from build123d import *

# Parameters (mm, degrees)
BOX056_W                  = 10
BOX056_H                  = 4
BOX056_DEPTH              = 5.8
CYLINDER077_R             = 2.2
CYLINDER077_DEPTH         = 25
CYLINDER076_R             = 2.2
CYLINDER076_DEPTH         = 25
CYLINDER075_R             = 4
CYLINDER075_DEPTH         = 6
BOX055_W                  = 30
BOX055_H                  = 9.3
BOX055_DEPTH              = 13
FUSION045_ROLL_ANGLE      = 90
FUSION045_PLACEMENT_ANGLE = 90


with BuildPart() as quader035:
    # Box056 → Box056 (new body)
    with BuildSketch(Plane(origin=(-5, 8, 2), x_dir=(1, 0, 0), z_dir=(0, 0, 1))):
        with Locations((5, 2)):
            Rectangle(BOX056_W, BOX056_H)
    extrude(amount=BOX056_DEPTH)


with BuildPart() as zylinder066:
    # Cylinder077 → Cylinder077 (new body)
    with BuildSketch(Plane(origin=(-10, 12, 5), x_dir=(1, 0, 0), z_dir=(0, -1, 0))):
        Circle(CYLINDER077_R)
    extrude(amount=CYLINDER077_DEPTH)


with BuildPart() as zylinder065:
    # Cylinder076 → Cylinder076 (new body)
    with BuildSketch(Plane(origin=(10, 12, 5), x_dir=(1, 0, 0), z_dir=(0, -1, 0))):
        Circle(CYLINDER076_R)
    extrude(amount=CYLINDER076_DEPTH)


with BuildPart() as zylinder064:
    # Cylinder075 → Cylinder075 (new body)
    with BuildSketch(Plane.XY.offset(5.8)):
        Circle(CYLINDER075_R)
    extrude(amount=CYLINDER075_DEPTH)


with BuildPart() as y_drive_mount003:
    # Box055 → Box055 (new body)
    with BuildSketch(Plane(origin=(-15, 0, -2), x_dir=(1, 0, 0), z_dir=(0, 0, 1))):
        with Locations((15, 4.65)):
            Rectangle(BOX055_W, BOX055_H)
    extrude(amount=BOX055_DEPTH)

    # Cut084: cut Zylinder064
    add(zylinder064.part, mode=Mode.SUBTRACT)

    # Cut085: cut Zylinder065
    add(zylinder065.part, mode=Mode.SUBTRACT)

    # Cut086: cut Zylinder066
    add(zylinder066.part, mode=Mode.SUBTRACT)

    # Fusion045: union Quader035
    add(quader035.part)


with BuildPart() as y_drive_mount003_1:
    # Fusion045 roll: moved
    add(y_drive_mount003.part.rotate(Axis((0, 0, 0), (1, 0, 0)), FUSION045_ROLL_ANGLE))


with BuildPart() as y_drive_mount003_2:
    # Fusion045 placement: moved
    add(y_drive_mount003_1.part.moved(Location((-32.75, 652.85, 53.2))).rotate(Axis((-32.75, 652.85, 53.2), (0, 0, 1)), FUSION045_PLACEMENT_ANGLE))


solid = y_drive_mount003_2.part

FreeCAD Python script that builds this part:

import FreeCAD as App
import Part
import Sketcher

V = App.Vector
Q = App.Units.Quantity

doc = App.newDocument("Part")
body = doc.addObject("PartDesign::Body", "Body")

sketch1 = body.newObject("Sketcher::SketchObject", "Sketch")
sketch1.AttachmentSupport = (doc.getObject("XY_Plane"), [""])
sketch1.MapMode = "FlatFace"
sketch1.AttachmentOffset = App.Placement(V(0, 0, 2), App.Rotation())
sketch1.addGeometry([
    Part.LineSegment(V(-5, 12, 0), V(-5, 8, 0)),
    Part.LineSegment(V(-5, 8, 0), V(5, 8, 0)),
    Part.LineSegment(V(5, 8, 0), V(5, 12, 0)),
    Part.LineSegment(V(5, 12, 0), V(-5, 12, 0)),
], False)
sketch1.addConstraint([
    Sketcher.Constraint("Coincident", 0, 2, 1, 1),
    Sketcher.Constraint("Coincident", 1, 2, 2, 1),
    Sketcher.Constraint("Coincident", 2, 2, 3, 1),
    Sketcher.Constraint("Coincident", 3, 2, 0, 1),
    Sketcher.Constraint("Vertical", 0),
    Sketcher.Constraint("Horizontal", 1),
    Sketcher.Constraint("Vertical", 2),
    Sketcher.Constraint("Horizontal", 3),
    Sketcher.Constraint("DistanceX", 1, 1, 1, 2, Q("10 mm")),
    Sketcher.Constraint("DistanceY", 0, 2, 0, 1, Q("4 mm")),
    Sketcher.Constraint("DistanceX", 0, 2, -1, 1, Q("5 mm")),
    Sketcher.Constraint("DistanceY", -1, 1, 0, 2, Q("8 mm")),
])
pad1 = body.newObject("PartDesign::Pad", "Pad")
pad1.Profile = sketch1
pad1.Length = 5.8
body2 = doc.addObject("PartDesign::Body", "Body001")

sketch2 = body2.newObject("Sketcher::SketchObject", "Sketch001")
sketch2.AttachmentSupport = (doc.getObject("XZ_Plane001"), [""])
sketch2.MapMode = "FlatFace"
sketch2.AttachmentOffset = App.Placement(V(0, 0, -12), App.Rotation())
sketch2.addGeometry(Part.Circle(V(-10, 5, 0), V(0, 0, 1), 2.2), False)
sketch2.addConstraint([
    Sketcher.Constraint("Diameter", 0, Q("4.4 mm")),
    Sketcher.Constraint("DistanceX", 0, 3, -1, 1, Q("10 mm")),
    Sketcher.Constraint("DistanceY", -1, 1, 0, 3, Q("5 mm")),
])
pad2 = body2.newObject("PartDesign::Pad", "Pad001")
pad2.Profile = sketch2
pad2.Length = 25
body3 = doc.addObject("PartDesign::Body", "Body002")

sketch3 = body3.newObject("Sketcher::SketchObject", "Sketch002")
sketch3.AttachmentSupport = (doc.getObject("XZ_Plane002"), [""])
sketch3.MapMode = "FlatFace"
sketch3.AttachmentOffset = App.Placement(V(0, 0, -12), App.Rotation())
sketch3.addGeometry(Part.Circle(V(10, 5, 0), V(0, 0, 1), 2.2), False)
sketch3.addConstraint([
    Sketcher.Constraint("Diameter", 0, Q("4.4 mm")),
    Sketcher.Constraint("DistanceX", -1, 1, 0, 3, Q("10 mm")),
    Sketcher.Constraint("DistanceY", -1, 1, 0, 3, Q("5 mm")),
])
pad3 = body3.newObject("PartDesign::Pad", "Pad002")
pad3.Profile = sketch3
pad3.Length = 25
body4 = doc.addObject("PartDesign::Body", "Body003")

sketch4 = body4.newObject("Sketcher::SketchObject", "Sketch003")
sketch4.AttachmentSupport = (doc.getObject("XY_Plane003"), [""])
sketch4.MapMode = "FlatFace"
sketch4.AttachmentOffset = App.Placement(V(0, 0, 5.8), App.Rotation())
sketch4.addGeometry(Part.Circle(V(0, 0, 0), V(0, 0, 1), 4), False)
sketch4.addConstraint([
    Sketcher.Constraint("Coincident", 0, 3, -1, 1),
    Sketcher.Constraint("Diameter", 0, Q("8 mm")),
])
pad4 = body4.newObject("PartDesign::Pad", "Pad003")
pad4.Profile = sketch4
pad4.Length = 6
body5 = doc.addObject("PartDesign::Body", "Body004")

sketch5 = body5.newObject("Sketcher::SketchObject", "Sketch004")
sketch5.AttachmentSupport = (doc.getObject("XY_Plane004"), [""])
sketch5.MapMode = "FlatFace"
sketch5.AttachmentOffset = App.Placement(V(0, 0, -2), App.Rotation())
sketch5.addGeometry([
    Part.LineSegment(V(-15, 9.3, 0), V(-15, 0, 0)),
    Part.LineSegment(V(-15, 0, 0), V(15, 0, 0)),
    Part.LineSegment(V(15, 0, 0), V(15, 9.3, 0)),
    Part.LineSegment(V(15, 9.3, 0), V(-15, 9.3, 0)),
], False)
sketch5.addConstraint([
    Sketcher.Constraint("Coincident", 0, 2, 1, 1),
    Sketcher.Constraint("Coincident", 1, 2, 2, 1),
    Sketcher.Constraint("Coincident", 2, 2, 3, 1),
    Sketcher.Constraint("Coincident", 3, 2, 0, 1),
    Sketcher.Constraint("Vertical", 0),
    Sketcher.Constraint("Horizontal", 1),
    Sketcher.Constraint("Vertical", 2),
    Sketcher.Constraint("Horizontal", 3),
    Sketcher.Constraint("Symmetric", 0, 2, 1, 2, -1, 1),
    Sketcher.Constraint("DistanceX", 1, 1, 1, 2, Q("30 mm")),
    Sketcher.Constraint("DistanceY", 0, 2, 0, 1, Q("9.3 mm")),
])
pad5 = body5.newObject("PartDesign::Pad", "Pad004")
pad5.Profile = sketch5
pad5.Length = 13
doc.recompute()

boolean = body5.newObject("PartDesign::Boolean", "Boolean")
boolean.Type = "Cut"
boolean.addObjects([body4])
doc.recompute()

boolean2 = body5.newObject("PartDesign::Boolean", "Boolean001")
boolean2.Type = "Cut"
boolean2.addObjects([body3])
doc.recompute()

boolean3 = body5.newObject("PartDesign::Boolean", "Boolean002")
boolean3.Type = "Cut"
boolean3.addObjects([body2])
doc.recompute()

boolean4 = body5.newObject("PartDesign::Boolean", "Boolean003")
boolean4.Type = "Fuse"
boolean4.addObjects([body])
body6 = doc.addObject("PartDesign::Body", "Body005")
doc.recompute()

body5.Placement = App.Placement(V(0, 0, 0), App.Rotation(V(1, 0, 0), 90))
boolean5 = body6.newObject("PartDesign::Boolean", "Boolean004")
boolean5.Type = "Fuse"
boolean5.addObjects([body5])
body7 = doc.addObject("PartDesign::Body", "Body006")
doc.recompute()

body6.Placement = App.Placement(V(-32.75, 652.85, 53.2), App.Rotation(V(0, 0, 1), 90))
boolean6 = body7.newObject("PartDesign::Boolean", "Boolean005")
boolean6.Type = "Fuse"
boolean6.addObjects([body6])

doc.recompute()
